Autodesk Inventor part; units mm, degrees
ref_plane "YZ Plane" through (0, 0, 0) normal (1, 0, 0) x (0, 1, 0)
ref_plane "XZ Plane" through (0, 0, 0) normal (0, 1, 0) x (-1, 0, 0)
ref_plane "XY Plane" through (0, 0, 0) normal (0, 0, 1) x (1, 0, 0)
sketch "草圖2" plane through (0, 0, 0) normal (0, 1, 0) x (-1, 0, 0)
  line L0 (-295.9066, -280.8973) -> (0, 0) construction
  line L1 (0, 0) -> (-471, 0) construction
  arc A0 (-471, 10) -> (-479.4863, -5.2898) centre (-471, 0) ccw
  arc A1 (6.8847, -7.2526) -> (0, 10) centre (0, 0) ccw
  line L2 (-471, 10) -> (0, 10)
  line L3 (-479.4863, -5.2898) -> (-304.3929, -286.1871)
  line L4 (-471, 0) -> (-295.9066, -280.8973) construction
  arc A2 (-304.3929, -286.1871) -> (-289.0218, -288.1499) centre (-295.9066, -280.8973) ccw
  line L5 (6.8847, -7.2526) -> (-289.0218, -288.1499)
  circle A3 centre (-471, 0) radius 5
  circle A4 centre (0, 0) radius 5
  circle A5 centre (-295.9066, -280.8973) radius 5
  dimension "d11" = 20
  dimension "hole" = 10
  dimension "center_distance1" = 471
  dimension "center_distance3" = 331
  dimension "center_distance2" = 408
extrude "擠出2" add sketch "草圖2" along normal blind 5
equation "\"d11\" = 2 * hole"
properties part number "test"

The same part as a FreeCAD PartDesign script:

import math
import FreeCAD as App
import Part
import Sketcher
from FreeCAD import Vector

doc = App.newDocument("Part")
params = doc.addObject("Spreadsheet::Sheet", "Params")
for row, (alias, value) in enumerate([
    ("sketch1_diameter", "10 mm"),
    ("sketch1_radius", "10 mm"),
    ("sketch1_width", "471 mm"),
    ("sketch1_length", "331 mm"),
    ("sketch1_length2", "408 mm"),
    ("pad1_length", "5 mm"),
], start=1):
    params.set(f"A{row}", alias)
    params.set(f"B{row}", "=" + value)
    params.setAlias(f"B{row}", alias)

body = doc.addObject("PartDesign::Body", "Body")

# Sketch on XZ plane
sketch1 = doc.addObject("Sketcher::SketchObject", "Sketch")
body.addObject(sketch1)
sketch1.AttachmentSupport = (doc.XZ_Plane, [""])
sketch1.MapMode = "FlatFace"
sketch1.addGeometry(Part.LineSegment(Vector(0, 10, 0), Vector(471, 10, 0)), False)
sketch1.addGeometry(Part.ArcOfCircle(Part.Circle(Vector(471, 0, 0), Vector(0, 0, 1), 10), math.radians(-32), math.radians(90)), False)
sketch1.addGeometry(Part.LineSegment(Vector(479, -5, 0), Vector(304, -286, 0)), False)
sketch1.addGeometry(Part.ArcOfCircle(Part.Circle(Vector(296, -281, 0), Vector(0, 0, 1), 10), math.radians(-134), math.radians(-32)), False)
sketch1.addGeometry(Part.LineSegment(Vector(289, -288, 0), Vector(-7, -7, 0)), False)
sketch1.addGeometry(Part.ArcOfCircle(Part.Circle(Vector(0, 0, 0), Vector(0, 0, 1), 10), math.radians(90), math.radians(226)), False)
sketch1.addGeometry(Part.Circle(Vector(296, -281, 0), Vector(0, 0, 1), 5), False)
sketch1.addGeometry(Part.Circle(Vector(471, 0, 0), Vector(0, 0, 1), 5), False)
sketch1.addGeometry(Part.Circle(Vector(0, 0, 0), Vector(0, 0, 1), 5), False)
sketch1.addConstraint(Sketcher.Constraint("Tangent", 0, 2, 1, 2))
sketch1.addConstraint(Sketcher.Constraint("Tangent", 1, 1, 2, 1))
sketch1.addConstraint(Sketcher.Constraint("Tangent", 2, 2, 3, 2))
sketch1.addConstraint(Sketcher.Constraint("Tangent", 3, 1, 4, 1))
sketch1.addConstraint(Sketcher.Constraint("Tangent", 4, 2, 5, 2))
sketch1.addConstraint(Sketcher.Constraint("Tangent", 5, 1, 0, 1))
sketch1.addConstraint(Sketcher.Constraint("Horizontal", 0))
sketch1.addConstraint(Sketcher.Constraint("Coincident", 5, 3, -1, 1))
sketch1.addConstraint(Sketcher.Constraint("Coincident", 8, 3, -1, 1))
sketch1.addConstraint(Sketcher.Constraint("Coincident", 6, 3, 3, 3))
sketch1.addConstraint(Sketcher.Constraint("Coincident", 7, 3, 1, 3))
sketch1.addConstraint(Sketcher.Constraint("Equal", 1, 3))
sketch1.addConstraint(Sketcher.Constraint("Equal", 3, 5))
sketch1.addConstraint(Sketcher.Constraint("Equal", 6, 7))
sketch1.addConstraint(Sketcher.Constraint("Equal", 7, 8))
sketch1.addConstraint(Sketcher.Constraint("Diameter", 6, 10.0))
sketch1.addConstraint(Sketcher.Constraint("Radius", 1, 10.0))
sketch1.addConstraint(Sketcher.Constraint("DistanceX", 0, 1, 0, 2, 471.0))
sketch1.addConstraint(Sketcher.Constraint("Distance", 2, 331.0))
sketch1.addConstraint(Sketcher.Constraint("Distance", 4, 408.0))
sketch1.setExpression("Constraints[15]", "Params.sketch1_diameter")
sketch1.setExpression("Constraints[16]", "Params.sketch1_radius")
sketch1.setExpression("Constraints[17]", "Params.sketch1_width")
sketch1.setExpression("Constraints[18]", "Params.sketch1_length")
sketch1.setExpression("Constraints[19]", "Params.sketch1_length2")
pad1 = doc.addObject("PartDesign::Pad", "Pad")
body.addObject(pad1)
pad1.Profile = sketch1
pad1.setExpression("Length", "Params.pad1_length")
pad1.Reversed = True

doc.recompute()
